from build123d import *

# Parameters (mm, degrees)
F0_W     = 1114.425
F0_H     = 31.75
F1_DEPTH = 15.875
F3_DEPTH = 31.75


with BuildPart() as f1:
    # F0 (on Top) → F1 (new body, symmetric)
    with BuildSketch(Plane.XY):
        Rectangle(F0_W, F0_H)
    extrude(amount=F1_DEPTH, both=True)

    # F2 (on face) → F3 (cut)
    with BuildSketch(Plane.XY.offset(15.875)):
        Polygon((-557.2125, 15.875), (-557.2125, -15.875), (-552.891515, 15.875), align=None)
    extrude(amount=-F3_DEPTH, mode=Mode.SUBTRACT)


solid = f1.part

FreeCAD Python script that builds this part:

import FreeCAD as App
import Part
import Sketcher
Q = App.Units.Quantity

doc = App.newDocument("Part")
body = doc.addObject("PartDesign::Body", "Body")

sketch1 = doc.addObject("Sketcher::SketchObject", "Sketch")
body.addObject(sketch1)
sketch1.AttachmentSupport = (doc.XY_Plane, [""])
sketch1.MapMode = "FlatFace"
sketch1.addGeometry(Part.LineSegment(App.Vector(-557, 16, 0), App.Vector(-557, -16, 0)), False)
sketch1.addGeometry(Part.LineSegment(App.Vector(-557, -16, 0), App.Vector(557, -16, 0)), False)
sketch1.addGeometry(Part.LineSegment(App.Vector(557, -16, 0), App.Vector(557, 16, 0)), False)
sketch1.addGeometry(Part.LineSegment(App.Vector(557, 16, 0), App.Vector(-557, 16, 0)), False)
sketch1.addConstraint(Sketcher.Constraint("Coincident", 0, 2, 1, 1))
sketch1.addConstraint(Sketcher.Constraint("Coincident", 1, 2, 2, 1))
sketch1.addConstraint(Sketcher.Constraint("Coincident", 2, 2, 3, 1))
sketch1.addConstraint(Sketcher.Constraint("Coincident", 3, 2, 0, 1))
sketch1.addConstraint(Sketcher.Constraint("Vertical", 0))
sketch1.addConstraint(Sketcher.Constraint("Horizontal", 1))
sketch1.addConstraint(Sketcher.Constraint("Vertical", 2))
sketch1.addConstraint(Sketcher.Constraint("Horizontal", 3))
sketch1.addConstraint(Sketcher.Constraint("Symmetric", 0, 2, 2, 2, -1, 1))
sketch1.addConstraint(Sketcher.Constraint("DistanceY", 0, 2, 0, 1, Q("1.25 in")))
sketch1.addConstraint(Sketcher.Constraint("DistanceX", 1, 1, 1, 2, Q("43.875 in")))
pad1 = doc.addObject("PartDesign::Pad", "Pad")
body.addObject(pad1)
pad1.Profile = sketch1
pad1.Length = Q("1.25 in")
pad1.Midplane = True

sketch2 = doc.addObject("Sketcher::SketchObject", "Sketch001")
body.addObject(sketch2)
sketch2.AttachmentSupport = (doc.XY_Plane, [""])
sketch2.MapMode = "FlatFace"
sketch2.AttachmentOffset = App.Placement(App.Vector(0, 0, 0.625 * 25.4), App.Rotation())
sketch2.addGeometry(Part.LineSegment(App.Vector(-557.2, 15.9, 0), App.Vector(-557.2, -15.9, 0)), False)
sketch2.addGeometry(Part.LineSegment(App.Vector(-557.2, -15.9, 0), App.Vector(-552.9, 15.9, 0)), False)
sketch2.addGeometry(Part.LineSegment(App.Vector(-552.9, 15.9, 0), App.Vector(-557.2, 15.9, 0)), False)
sketch2.addConstraint(Sketcher.Constraint("Coincident", 0, 2, 1, 1))
sketch2.addConstraint(Sketcher.Constraint("Coincident", 1, 2, 2, 1))
sketch2.addConstraint(Sketcher.Constraint("Coincident", 2, 2, 0, 1))
sketch2.addConstraint(Sketcher.Constraint("Vertical", 0))
sketch2.addConstraint(Sketcher.Constraint("Horizontal", 2))
sketch2.addConstraint(Sketcher.Constraint("DistanceY", 0, 2, 0, 1, Q("1.25 in")))
sketch2.addConstraint(Sketcher.Constraint("Angle", 1, Q("82.250001 deg")))
sketch2.addConstraint(Sketcher.Constraint("DistanceX", 0, 2, -1, 1, Q("21.9375 in")))
sketch2.addConstraint(Sketcher.Constraint("DistanceY", 0, 2, -1, 1, Q("0.625 in")))
pocket1 = doc.addObject("PartDesign::Pocket", "Pocket")
body.addObject(pocket1)
pocket1.Profile = sketch2
pocket1.Length = Q("1.25 in")

doc.recompute()
